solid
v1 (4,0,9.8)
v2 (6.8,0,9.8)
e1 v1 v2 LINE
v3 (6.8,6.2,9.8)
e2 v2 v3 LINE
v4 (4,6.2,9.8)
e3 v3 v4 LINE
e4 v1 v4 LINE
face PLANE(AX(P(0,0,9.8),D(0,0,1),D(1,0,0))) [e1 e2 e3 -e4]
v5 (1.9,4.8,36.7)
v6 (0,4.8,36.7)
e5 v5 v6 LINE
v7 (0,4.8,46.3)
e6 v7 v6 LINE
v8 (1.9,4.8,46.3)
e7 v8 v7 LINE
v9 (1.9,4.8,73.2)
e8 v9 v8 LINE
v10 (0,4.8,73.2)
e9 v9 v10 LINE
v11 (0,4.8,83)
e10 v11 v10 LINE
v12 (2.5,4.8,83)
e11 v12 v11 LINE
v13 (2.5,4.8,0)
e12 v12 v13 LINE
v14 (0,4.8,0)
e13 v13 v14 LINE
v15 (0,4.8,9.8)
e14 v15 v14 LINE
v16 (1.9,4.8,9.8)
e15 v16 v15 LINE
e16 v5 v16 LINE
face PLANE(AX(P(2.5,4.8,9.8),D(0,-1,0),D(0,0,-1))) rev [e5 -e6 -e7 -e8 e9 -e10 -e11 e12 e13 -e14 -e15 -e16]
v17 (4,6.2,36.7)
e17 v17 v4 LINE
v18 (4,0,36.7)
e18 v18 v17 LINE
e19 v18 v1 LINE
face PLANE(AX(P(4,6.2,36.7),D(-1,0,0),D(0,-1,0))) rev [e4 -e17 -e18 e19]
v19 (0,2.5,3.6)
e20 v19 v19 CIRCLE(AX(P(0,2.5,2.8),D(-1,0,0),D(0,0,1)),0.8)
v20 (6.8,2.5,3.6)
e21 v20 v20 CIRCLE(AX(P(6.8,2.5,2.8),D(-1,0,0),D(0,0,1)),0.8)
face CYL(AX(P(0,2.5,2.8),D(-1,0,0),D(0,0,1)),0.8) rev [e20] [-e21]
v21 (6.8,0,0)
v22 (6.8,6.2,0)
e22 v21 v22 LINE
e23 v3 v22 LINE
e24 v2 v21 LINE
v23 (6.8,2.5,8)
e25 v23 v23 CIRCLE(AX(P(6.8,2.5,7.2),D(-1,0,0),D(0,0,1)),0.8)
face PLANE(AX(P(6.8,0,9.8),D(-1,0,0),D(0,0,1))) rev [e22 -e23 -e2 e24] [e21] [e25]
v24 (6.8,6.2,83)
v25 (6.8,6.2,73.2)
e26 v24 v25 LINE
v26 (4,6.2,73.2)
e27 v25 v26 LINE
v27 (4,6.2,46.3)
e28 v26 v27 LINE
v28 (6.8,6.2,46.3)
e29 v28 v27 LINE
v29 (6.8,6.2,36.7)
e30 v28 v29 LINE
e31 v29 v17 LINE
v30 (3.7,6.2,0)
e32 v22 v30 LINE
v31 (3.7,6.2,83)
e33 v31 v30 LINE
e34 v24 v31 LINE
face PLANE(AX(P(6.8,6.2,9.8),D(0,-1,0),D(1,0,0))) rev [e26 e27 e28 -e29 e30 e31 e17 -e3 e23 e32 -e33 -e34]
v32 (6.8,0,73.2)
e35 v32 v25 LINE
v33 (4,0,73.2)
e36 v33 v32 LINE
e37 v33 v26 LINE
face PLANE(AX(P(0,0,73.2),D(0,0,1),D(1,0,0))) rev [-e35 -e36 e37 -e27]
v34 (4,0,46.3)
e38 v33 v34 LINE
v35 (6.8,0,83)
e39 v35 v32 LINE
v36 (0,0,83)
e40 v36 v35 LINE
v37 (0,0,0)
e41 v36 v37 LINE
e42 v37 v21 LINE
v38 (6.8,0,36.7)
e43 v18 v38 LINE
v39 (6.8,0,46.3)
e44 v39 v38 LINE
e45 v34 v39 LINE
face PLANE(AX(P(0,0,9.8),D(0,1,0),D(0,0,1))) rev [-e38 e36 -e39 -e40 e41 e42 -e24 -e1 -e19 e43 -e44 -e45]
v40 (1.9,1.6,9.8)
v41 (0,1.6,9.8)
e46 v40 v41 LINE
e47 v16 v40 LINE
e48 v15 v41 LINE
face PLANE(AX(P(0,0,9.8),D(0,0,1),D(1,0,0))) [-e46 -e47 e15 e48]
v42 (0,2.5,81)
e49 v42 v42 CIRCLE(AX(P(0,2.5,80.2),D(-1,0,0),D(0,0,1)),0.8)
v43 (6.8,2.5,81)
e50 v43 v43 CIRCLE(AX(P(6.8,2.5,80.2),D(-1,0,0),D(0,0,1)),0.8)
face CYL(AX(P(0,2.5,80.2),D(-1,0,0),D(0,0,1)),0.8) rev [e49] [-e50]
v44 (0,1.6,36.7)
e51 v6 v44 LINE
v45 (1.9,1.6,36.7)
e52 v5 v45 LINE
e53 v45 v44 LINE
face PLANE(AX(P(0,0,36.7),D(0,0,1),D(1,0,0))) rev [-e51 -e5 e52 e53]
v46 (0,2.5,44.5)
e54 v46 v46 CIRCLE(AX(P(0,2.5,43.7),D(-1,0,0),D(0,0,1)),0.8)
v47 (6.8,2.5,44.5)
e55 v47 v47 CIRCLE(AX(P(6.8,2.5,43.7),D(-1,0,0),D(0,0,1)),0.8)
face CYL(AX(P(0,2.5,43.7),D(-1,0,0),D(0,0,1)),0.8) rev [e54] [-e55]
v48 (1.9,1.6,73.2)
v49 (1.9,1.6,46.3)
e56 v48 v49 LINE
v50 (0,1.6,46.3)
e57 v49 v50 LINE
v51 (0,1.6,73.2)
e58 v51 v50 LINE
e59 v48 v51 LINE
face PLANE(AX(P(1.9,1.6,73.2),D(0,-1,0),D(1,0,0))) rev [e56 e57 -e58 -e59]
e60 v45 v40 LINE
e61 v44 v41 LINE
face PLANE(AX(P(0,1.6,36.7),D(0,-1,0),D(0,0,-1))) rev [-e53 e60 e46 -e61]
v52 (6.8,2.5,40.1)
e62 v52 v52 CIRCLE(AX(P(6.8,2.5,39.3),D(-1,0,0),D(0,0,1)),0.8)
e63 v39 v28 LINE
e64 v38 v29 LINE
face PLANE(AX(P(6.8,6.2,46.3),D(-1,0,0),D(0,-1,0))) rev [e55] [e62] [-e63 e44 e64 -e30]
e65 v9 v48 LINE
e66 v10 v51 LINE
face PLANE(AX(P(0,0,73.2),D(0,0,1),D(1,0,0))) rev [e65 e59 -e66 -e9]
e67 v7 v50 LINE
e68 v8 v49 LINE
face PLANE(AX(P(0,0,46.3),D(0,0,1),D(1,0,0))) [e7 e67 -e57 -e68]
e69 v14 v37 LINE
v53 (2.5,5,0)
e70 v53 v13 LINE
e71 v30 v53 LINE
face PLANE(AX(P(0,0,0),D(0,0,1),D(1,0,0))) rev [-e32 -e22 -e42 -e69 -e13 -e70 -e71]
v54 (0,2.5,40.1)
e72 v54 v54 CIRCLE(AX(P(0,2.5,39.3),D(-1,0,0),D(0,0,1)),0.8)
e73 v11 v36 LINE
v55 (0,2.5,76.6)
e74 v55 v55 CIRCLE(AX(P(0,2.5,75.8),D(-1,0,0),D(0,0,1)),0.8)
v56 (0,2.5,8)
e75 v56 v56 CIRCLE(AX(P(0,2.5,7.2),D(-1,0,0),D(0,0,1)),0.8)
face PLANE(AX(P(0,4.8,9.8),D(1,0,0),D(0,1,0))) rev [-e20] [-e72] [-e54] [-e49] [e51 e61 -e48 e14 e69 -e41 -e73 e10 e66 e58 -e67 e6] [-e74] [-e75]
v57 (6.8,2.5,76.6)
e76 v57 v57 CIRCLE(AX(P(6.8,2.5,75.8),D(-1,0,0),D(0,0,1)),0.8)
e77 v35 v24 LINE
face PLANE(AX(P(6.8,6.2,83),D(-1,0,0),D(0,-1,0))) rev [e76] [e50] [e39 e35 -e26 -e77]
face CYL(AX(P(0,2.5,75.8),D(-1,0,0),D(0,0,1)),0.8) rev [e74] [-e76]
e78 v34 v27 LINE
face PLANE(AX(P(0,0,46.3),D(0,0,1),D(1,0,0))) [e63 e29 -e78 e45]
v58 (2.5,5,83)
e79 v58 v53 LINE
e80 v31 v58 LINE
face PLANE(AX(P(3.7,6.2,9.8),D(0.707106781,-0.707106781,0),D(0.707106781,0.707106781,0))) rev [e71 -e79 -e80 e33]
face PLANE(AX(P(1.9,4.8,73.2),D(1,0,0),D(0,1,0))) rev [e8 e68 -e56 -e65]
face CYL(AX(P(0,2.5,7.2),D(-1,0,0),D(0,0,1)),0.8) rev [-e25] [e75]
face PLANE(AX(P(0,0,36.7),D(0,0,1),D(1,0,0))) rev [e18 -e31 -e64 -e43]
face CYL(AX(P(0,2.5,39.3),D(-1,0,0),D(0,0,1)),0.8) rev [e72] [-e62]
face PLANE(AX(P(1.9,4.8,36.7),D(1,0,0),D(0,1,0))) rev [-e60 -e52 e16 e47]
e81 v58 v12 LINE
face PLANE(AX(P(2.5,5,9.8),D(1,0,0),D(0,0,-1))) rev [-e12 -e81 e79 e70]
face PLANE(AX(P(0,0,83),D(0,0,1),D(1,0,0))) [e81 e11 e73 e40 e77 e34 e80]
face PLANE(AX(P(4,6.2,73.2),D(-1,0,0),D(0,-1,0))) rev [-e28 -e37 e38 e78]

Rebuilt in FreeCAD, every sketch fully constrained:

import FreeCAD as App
import Part
import Sketcher
Q = App.Units.Quantity

doc = App.newDocument("Part")
body = doc.addObject("PartDesign::Body", "Body")

sketch1 = doc.addObject("Sketcher::SketchObject", "Sketch")
body.addObject(sketch1)
sketch1.AttachmentSupport = (doc.XY_Plane, [""])
sketch1.MapMode = "FlatFace"
sketch1.addGeometry([
    Part.LineSegment(App.Vector(0, 0, 0), App.Vector(6.8, 0, 0)),
    Part.LineSegment(App.Vector(6.8, 0, 0), App.Vector(6.8, 6.2, 0)),
    Part.LineSegment(App.Vector(6.8, 6.2, 0), App.Vector(3.7, 6.2, 0)),
    Part.LineSegment(App.Vector(3.7, 6.2, 0), App.Vector(2.5, 5, 0)),
    Part.LineSegment(App.Vector(2.5, 5, 0), App.Vector(2.5, 4.8, 0)),
    Part.LineSegment(App.Vector(2.5, 4.8, 0), App.Vector(0, 4.8, 0)),
    Part.LineSegment(App.Vector(0, 4.8, 0), App.Vector(0, 0, 0)),
], False)
sketch1.addConstraint([
    Sketcher.Constraint("Coincident", 0, 2, 1, 1),
    Sketcher.Constraint("Coincident", 1, 2, 2, 1),
    Sketcher.Constraint("Coincident", 2, 2, 3, 1),
    Sketcher.Constraint("Coincident", 3, 2, 4, 1),
    Sketcher.Constraint("Coincident", 4, 2, 5, 1),
    Sketcher.Constraint("Coincident", 5, 2, 6, 1),
    Sketcher.Constraint("Coincident", 6, 2, 0, 1),
    Sketcher.Constraint("Horizontal", 0),
    Sketcher.Constraint("Vertical", 1),
    Sketcher.Constraint("Horizontal", 2),
    Sketcher.Constraint("Vertical", 4),
    Sketcher.Constraint("Horizontal", 5),
    Sketcher.Constraint("Vertical", 6),
    Sketcher.Constraint("Coincident", 6, 2, -1, 1),
    Sketcher.Constraint("Angle", 3, Q("-135 deg")),
    Sketcher.Constraint("DistanceX", 0, 1, 0, 2, 6.8),
    Sketcher.Constraint("DistanceX", 2, 2, 2, 1, 3.1),
    Sketcher.Constraint("DistanceX", 5, 2, 5, 1, 2.5),
    Sketcher.Constraint("DistanceY", 1, 1, 1, 2, 6.2),
    Sketcher.Constraint("DistanceY", 4, 2, 4, 1, 0.2),
])
pad1 = doc.addObject("PartDesign::Pad", "Pad")
body.addObject(pad1)
pad1.Profile = sketch1
pad1.Length = 9.8

sketch2 = doc.addObject("Sketcher::SketchObject", "Sketch001")
body.addObject(sketch2)
sketch2.AttachmentSupport = (doc.XY_Plane, [""])
sketch2.MapMode = "FlatFace"
sketch2.AttachmentOffset = App.Placement(App.Vector(0, 0, 9.8), App.Rotation())
sketch2.addGeometry([
    Part.LineSegment(App.Vector(0, 1.6, 0), App.Vector(0, 0, 0)),
    Part.LineSegment(App.Vector(0, 0, 0), App.Vector(4, 0, 0)),
    Part.LineSegment(App.Vector(4, 0, 0), App.Vector(4, 6.2, 0)),
    Part.LineSegment(App.Vector(4, 6.2, 0), App.Vector(3.7, 6.2, 0)),
    Part.LineSegment(App.Vector(3.7, 6.2, 0), App.Vector(2.5, 5, 0)),
    Part.LineSegment(App.Vector(2.5, 5, 0), App.Vector(2.5, 4.8, 0)),
    Part.LineSegment(App.Vector(2.5, 4.8, 0), App.Vector(1.9, 4.8, 0)),
    Part.LineSegment(App.Vector(1.9, 4.8, 0), App.Vector(1.9, 1.6, 0)),
    Part.LineSegment(App.Vector(1.9, 1.6, 0), App.Vector(0, 1.6, 0)),
], False)
sketch2.addConstraint([
    Sketcher.Constraint("Coincident", 0, 2, 1, 1),
    Sketcher.Constraint("Coincident", 1, 2, 2, 1),
    Sketcher.Constraint("Coincident", 2, 2, 3, 1),
    Sketcher.Constraint("Coincident", 3, 2, 4, 1),
    Sketcher.Constraint("Coincident", 4, 2, 5, 1),
    Sketcher.Constraint("Coincident", 5, 2, 6, 1),
    Sketcher.Constraint("Coincident", 6, 2, 7, 1),
    Sketcher.Constraint("Coincident", 7, 2, 8, 1),
    Sketcher.Constraint("Coincident", 8, 2, 0, 1),
    Sketcher.Constraint("Vertical", 0),
    Sketcher.Constraint("Horizontal", 1),
    Sketcher.Constraint("Vertical", 2),
    Sketcher.Constraint("Horizontal", 3),
    Sketcher.Constraint("Vertical", 5),
    Sketcher.Constraint("Horizontal", 6),
    Sketcher.Constraint("Vertical", 7),
    Sketcher.Constraint("Horizontal", 8),
    Sketcher.Constraint("Coincident", 0, 2, -1, 1),
    Sketcher.Constraint("DistanceX", 1, 1, 1, 2, 4.0),
    Sketcher.Constraint("Angle", 4, Q("-135 deg")),
    Sketcher.Constraint("DistanceX", 3, 2, 3, 1, 0.3),
    Sketcher.Constraint("DistanceX", 6, 2, 6, 1, 0.6),
    Sketcher.Constraint("DistanceX", 8, 2, 8, 1, 1.9),
    Sketcher.Constraint("DistanceY", 0, 2, 0, 1, 1.6),
    Sketcher.Constraint("DistanceY", 2, 1, 2, 2, 6.2),
    Sketcher.Constraint("DistanceY", 5, 2, 5, 1, 0.2),
])
pad2 = doc.addObject("PartDesign::Pad", "Pad001")
body.addObject(pad2)
pad2.Profile = sketch2
pad2.Length = 26.9

sketch3 = doc.addObject("Sketcher::SketchObject", "Sketch002")
body.addObject(sketch3)
sketch3.AttachmentSupport = (doc.XY_Plane, [""])
sketch3.MapMode = "FlatFace"
sketch3.AttachmentOffset = App.Placement(App.Vector(0, 0, 36.7), App.Rotation())
sketch3.addGeometry([
    Part.LineSegment(App.Vector(0, 0, 0), App.Vector(6.8, 0, 0)),
    Part.LineSegment(App.Vector(6.8, 0, 0), App.Vector(6.8, 6.2, 0)),
    Part.LineSegment(App.Vector(6.8, 6.2, 0), App.Vector(3.7, 6.2, 0)),
    Part.LineSegment(App.Vector(3.7, 6.2, 0), App.Vector(2.5, 5, 0)),
    Part.LineSegment(App.Vector(2.5, 5, 0), App.Vector(2.5, 4.8, 0)),
    Part.LineSegment(App.Vector(2.5, 4.8, 0), App.Vector(0, 4.8, 0)),
    Part.LineSegment(App.Vector(0, 4.8, 0), App.Vector(0, 0, 0)),
], False)
sketch3.addConstraint([
    Sketcher.Constraint("Coincident", 0, 2, 1, 1),
    Sketcher.Constraint("Coincident", 1, 2, 2, 1),
    Sketcher.Constraint("Coincident", 2, 2, 3, 1),
    Sketcher.Constraint("Coincident", 3, 2, 4, 1),
    Sketcher.Constraint("Coincident", 4, 2, 5, 1),
    Sketcher.Constraint("Coincident", 5, 2, 6, 1),
    Sketcher.Constraint("Coincident", 6, 2, 0, 1),
    Sketcher.Constraint("Horizontal", 0),
    Sketcher.Constraint("Vertical", 1),
    Sketcher.Constraint("Horizontal", 2),
    Sketcher.Constraint("Vertical", 4),
    Sketcher.Constraint("Horizontal", 5),
    Sketcher.Constraint("Vertical", 6),
    Sketcher.Constraint("Coincident", 6, 2, -1, 1),
    Sketcher.Constraint("Angle", 3, Q("-135 deg")),
    Sketcher.Constraint("DistanceX", 0, 1, 0, 2, 6.8),
    Sketcher.Constraint("DistanceX", 2, 2, 2, 1, 3.1),
    Sketcher.Constraint("DistanceX", 5, 2, 5, 1, 2.5),
    Sketcher.Constraint("DistanceY", 1, 1, 1, 2, 6.2),
    Sketcher.Constraint("DistanceY", 4, 2, 4, 1, 0.2),
])
pad3 = doc.addObject("PartDesign::Pad", "Pad002")
body.addObject(pad3)
pad3.Profile = sketch3
pad3.Length = 9.6

sketch4 = doc.addObject("Sketcher::SketchObject", "Sketch003")
body.addObject(sketch4)
sketch4.AttachmentSupport = (doc.XY_Plane, [""])
sketch4.MapMode = "FlatFace"
sketch4.AttachmentOffset = App.Placement(App.Vector(0, 0, 46.3), App.Rotation())
sketch4.addGeometry([
    Part.LineSegment(App.Vector(0, 1.6, 0), App.Vector(0, 0, 0)),
    Part.LineSegment(App.Vector(0, 0, 0), App.Vector(4, 0, 0)),
    Part.LineSegment(App.Vector(4, 0, 0), App.Vector(4, 6.2, 0)),
    Part.LineSegment(App.Vector(4, 6.2, 0), App.Vector(3.7, 6.2, 0)),
    Part.LineSegment(App.Vector(3.7, 6.2, 0), App.Vector(2.5, 5, 0)),
    Part.LineSegment(App.Vector(2.5, 5, 0), App.Vector(2.5, 4.8, 0)),
    Part.LineSegment(App.Vector(2.5, 4.8, 0), App.Vector(1.9, 4.8, 0)),
    Part.LineSegment(App.Vector(1.9, 4.8, 0), App.Vector(1.9, 1.6, 0)),
    Part.LineSegment(App.Vector(1.9, 1.6, 0), App.Vector(0, 1.6, 0)),
], False)
sketch4.addConstraint([
    Sketcher.Constraint("Coincident", 0, 2, 1, 1),
    Sketcher.Constraint("Coincident", 1, 2, 2, 1),
    Sketcher.Constraint("Coincident", 2, 2, 3, 1),
    Sketcher.Constraint("Coincident", 3, 2, 4, 1),
    Sketcher.Constraint("Coincident", 4, 2, 5, 1),
    Sketcher.Constraint("Coincident", 5, 2, 6, 1),
    Sketcher.Constraint("Coincident", 6, 2, 7, 1),
    Sketcher.Constraint("Coincident", 7, 2, 8, 1),
    Sketcher.Constraint("Coincident", 8, 2, 0, 1),
    Sketcher.Constraint("Vertical", 0),
    Sketcher.Constraint("Horizontal", 1),
    Sketcher.Constraint("Vertical", 2),
    Sketcher.Constraint("Horizontal", 3),
    Sketcher.Constraint("Vertical", 5),
    Sketcher.Constraint("Horizontal", 6),
    Sketcher.Constraint("Vertical", 7),
    Sketcher.Constraint("Horizontal", 8),
    Sketcher.Constraint("Coincident", 0, 2, -1, 1),
    Sketcher.Constraint("DistanceX", 1, 1, 1, 2, 4.0),
    Sketcher.Constraint("Angle", 4, Q("-135 deg")),
    Sketcher.Constraint("DistanceX", 3, 2, 3, 1, 0.3),
    Sketcher.Constraint("DistanceX", 6, 2, 6, 1, 0.6),
    Sketcher.Constraint("DistanceX", 8, 2, 8, 1, 1.9),
    Sketcher.Constraint("DistanceY", 0, 2, 0, 1, 1.6),
    Sketcher.Constraint("DistanceY", 2, 1, 2, 2, 6.2),
    Sketcher.Constraint("DistanceY", 5, 2, 5, 1, 0.2),
])
pad4 = doc.addObject("PartDesign::Pad", "Pad003")
body.addObject(pad4)
pad4.Profile = sketch4
pad4.Length = 26.9

sketch5 = doc.addObject("Sketcher::SketchObject", "Sketch004")
body.addObject(sketch5)
sketch5.AttachmentSupport = (doc.XY_Plane, [""])
sketch5.MapMode = "FlatFace"
sketch5.AttachmentOffset = App.Placement(App.Vector(0, 0, 73.2), App.Rotation())
sketch5.addGeometry([
    Part.LineSegment(App.Vector(0, 0, 0), App.Vector(6.8, 0, 0)),
    Part.LineSegment(App.Vector(6.8, 0, 0), App.Vector(6.8, 6.2, 0)),
    Part.LineSegment(App.Vector(6.8, 6.2, 0), App.Vector(3.7, 6.2, 0)),
    Part.LineSegment(App.Vector(3.7, 6.2, 0), App.Vector(2.5, 5, 0)),
    Part.LineSegment(App.Vector(2.5, 5, 0), App.Vector(2.5, 4.8, 0)),
    Part.LineSegment(App.Vector(2.5, 4.8, 0), App.Vector(0, 4.8, 0)),
    Part.LineSegment(App.Vector(0, 4.8, 0), App.Vector(0, 0, 0)),
], False)
sketch5.addConstraint([
    Sketcher.Constraint("Coincident", 0, 2, 1, 1),
    Sketcher.Constraint("Coincident", 1, 2, 2, 1),
    Sketcher.Constraint("Coincident", 2, 2, 3, 1),
    Sketcher.Constraint("Coincident", 3, 2, 4, 1),
    Sketcher.Constraint("Coincident", 4, 2, 5, 1),
    Sketcher.Constraint("Coincident", 5, 2, 6, 1),
    Sketcher.Constraint("Coincident", 6, 2, 0, 1),
    Sketcher.Constraint("Horizontal", 0),
    Sketcher.Constraint("Vertical", 1),
    Sketcher.Constraint("Horizontal", 2),
    Sketcher.Constraint("Vertical", 4),
    Sketcher.Constraint("Horizontal", 5),
    Sketcher.Constraint("Vertical", 6),
    Sketcher.Constraint("Coincident", 6, 2, -1, 1),
    Sketcher.Constraint("Angle", 3, Q("-135 deg")),
    Sketcher.Constraint("DistanceX", 0, 1, 0, 2, 6.8),
    Sketcher.Constraint("DistanceX", 2, 2, 2, 1, 3.1),
    Sketcher.Constraint("DistanceX", 5, 2, 5, 1, 2.5),
    Sketcher.Constraint("DistanceY", 1, 1, 1, 2, 6.2),
    Sketcher.Constraint("DistanceY", 4, 2, 4, 1, 0.2),
])
pad5 = doc.addObject("PartDesign::Pad", "Pad004")
body.addObject(pad5)
pad5.Profile = sketch5
pad5.Length = 9.8

sketch6 = doc.addObject("Sketcher::SketchObject", "Sketch005")
body.addObject(sketch6)
sketch6.AttachmentSupport = (doc.YZ_Plane, [""])
sketch6.MapMode = "FlatFace"
sketch6.addGeometry([
    Part.Circle(App.Vector(2.5, 7.2, 0), App.Vector(0, 0, 1), 0.8),
    Part.Circle(App.Vector(2.5, 2.8, 0), App.Vector(0, 0, 1), 0.8),
    Part.Circle(App.Vector(2.5, 39.3, 0), App.Vector(0, 0, 1), 0.8),
    Part.Circle(App.Vector(2.5, 43.7, 0), App.Vector(0, 0, 1), 0.8),
    Part.Circle(App.Vector(2.5, 75.8, 0), App.Vector(0, 0, 1), 0.8),
    Part.Circle(App.Vector(2.5, 80.2, 0), App.Vector(0, 0, 1), 0.8),
], False)
sketch6.addConstraint([
    Sketcher.Constraint("Equal", 0, 1),
    Sketcher.Constraint("Equal", 1, 2),
    Sketcher.Constraint("Equal", 2, 3),
    Sketcher.Constraint("Equal", 3, 4),
    Sketcher.Constraint("Equal", 4, 5),
    Sketcher.Constraint("Vertical", 0, 3, 1, 3),
    Sketcher.Constraint("Vertical", 1, 3, 2, 3),
    Sketcher.Constraint("Vertical", 2, 3, 3, 3),
    Sketcher.Constraint("Vertical", 3, 3, 4, 3),
    Sketcher.Constraint("Vertical", 4, 3, 5, 3),
    Sketcher.Constraint("Diameter", 0, 1.6),
    Sketcher.Constraint("DistanceY", 1, 3, 4, 3, 73.0),
    Sketcher.Constraint("DistanceY", 0, 3, 5, 3, 73.0),
    Sketcher.Constraint("DistanceX", -1, 1, 0, 3, 2.5),
    Sketcher.Constraint("DistanceY", -1, 1, 0, 3, 7.2),
    Sketcher.Constraint("DistanceY", -1, 1, 1, 3, 2.8),
    Sketcher.Constraint("DistanceY", -1, 1, 2, 3, 39.3),
    Sketcher.Constraint("DistanceY", -1, 1, 3, 3, 43.7),
])
doc.recompute()
hole = doc.addObject("PartDesign::Hole", "Hole")
body.addObject(hole)
hole.Profile = sketch6
hole.ThreadType = "None"
hole.Diameter = 1.6
hole.DepthType = "ThroughAll"
hole.Reversed = True

doc.recompute()
